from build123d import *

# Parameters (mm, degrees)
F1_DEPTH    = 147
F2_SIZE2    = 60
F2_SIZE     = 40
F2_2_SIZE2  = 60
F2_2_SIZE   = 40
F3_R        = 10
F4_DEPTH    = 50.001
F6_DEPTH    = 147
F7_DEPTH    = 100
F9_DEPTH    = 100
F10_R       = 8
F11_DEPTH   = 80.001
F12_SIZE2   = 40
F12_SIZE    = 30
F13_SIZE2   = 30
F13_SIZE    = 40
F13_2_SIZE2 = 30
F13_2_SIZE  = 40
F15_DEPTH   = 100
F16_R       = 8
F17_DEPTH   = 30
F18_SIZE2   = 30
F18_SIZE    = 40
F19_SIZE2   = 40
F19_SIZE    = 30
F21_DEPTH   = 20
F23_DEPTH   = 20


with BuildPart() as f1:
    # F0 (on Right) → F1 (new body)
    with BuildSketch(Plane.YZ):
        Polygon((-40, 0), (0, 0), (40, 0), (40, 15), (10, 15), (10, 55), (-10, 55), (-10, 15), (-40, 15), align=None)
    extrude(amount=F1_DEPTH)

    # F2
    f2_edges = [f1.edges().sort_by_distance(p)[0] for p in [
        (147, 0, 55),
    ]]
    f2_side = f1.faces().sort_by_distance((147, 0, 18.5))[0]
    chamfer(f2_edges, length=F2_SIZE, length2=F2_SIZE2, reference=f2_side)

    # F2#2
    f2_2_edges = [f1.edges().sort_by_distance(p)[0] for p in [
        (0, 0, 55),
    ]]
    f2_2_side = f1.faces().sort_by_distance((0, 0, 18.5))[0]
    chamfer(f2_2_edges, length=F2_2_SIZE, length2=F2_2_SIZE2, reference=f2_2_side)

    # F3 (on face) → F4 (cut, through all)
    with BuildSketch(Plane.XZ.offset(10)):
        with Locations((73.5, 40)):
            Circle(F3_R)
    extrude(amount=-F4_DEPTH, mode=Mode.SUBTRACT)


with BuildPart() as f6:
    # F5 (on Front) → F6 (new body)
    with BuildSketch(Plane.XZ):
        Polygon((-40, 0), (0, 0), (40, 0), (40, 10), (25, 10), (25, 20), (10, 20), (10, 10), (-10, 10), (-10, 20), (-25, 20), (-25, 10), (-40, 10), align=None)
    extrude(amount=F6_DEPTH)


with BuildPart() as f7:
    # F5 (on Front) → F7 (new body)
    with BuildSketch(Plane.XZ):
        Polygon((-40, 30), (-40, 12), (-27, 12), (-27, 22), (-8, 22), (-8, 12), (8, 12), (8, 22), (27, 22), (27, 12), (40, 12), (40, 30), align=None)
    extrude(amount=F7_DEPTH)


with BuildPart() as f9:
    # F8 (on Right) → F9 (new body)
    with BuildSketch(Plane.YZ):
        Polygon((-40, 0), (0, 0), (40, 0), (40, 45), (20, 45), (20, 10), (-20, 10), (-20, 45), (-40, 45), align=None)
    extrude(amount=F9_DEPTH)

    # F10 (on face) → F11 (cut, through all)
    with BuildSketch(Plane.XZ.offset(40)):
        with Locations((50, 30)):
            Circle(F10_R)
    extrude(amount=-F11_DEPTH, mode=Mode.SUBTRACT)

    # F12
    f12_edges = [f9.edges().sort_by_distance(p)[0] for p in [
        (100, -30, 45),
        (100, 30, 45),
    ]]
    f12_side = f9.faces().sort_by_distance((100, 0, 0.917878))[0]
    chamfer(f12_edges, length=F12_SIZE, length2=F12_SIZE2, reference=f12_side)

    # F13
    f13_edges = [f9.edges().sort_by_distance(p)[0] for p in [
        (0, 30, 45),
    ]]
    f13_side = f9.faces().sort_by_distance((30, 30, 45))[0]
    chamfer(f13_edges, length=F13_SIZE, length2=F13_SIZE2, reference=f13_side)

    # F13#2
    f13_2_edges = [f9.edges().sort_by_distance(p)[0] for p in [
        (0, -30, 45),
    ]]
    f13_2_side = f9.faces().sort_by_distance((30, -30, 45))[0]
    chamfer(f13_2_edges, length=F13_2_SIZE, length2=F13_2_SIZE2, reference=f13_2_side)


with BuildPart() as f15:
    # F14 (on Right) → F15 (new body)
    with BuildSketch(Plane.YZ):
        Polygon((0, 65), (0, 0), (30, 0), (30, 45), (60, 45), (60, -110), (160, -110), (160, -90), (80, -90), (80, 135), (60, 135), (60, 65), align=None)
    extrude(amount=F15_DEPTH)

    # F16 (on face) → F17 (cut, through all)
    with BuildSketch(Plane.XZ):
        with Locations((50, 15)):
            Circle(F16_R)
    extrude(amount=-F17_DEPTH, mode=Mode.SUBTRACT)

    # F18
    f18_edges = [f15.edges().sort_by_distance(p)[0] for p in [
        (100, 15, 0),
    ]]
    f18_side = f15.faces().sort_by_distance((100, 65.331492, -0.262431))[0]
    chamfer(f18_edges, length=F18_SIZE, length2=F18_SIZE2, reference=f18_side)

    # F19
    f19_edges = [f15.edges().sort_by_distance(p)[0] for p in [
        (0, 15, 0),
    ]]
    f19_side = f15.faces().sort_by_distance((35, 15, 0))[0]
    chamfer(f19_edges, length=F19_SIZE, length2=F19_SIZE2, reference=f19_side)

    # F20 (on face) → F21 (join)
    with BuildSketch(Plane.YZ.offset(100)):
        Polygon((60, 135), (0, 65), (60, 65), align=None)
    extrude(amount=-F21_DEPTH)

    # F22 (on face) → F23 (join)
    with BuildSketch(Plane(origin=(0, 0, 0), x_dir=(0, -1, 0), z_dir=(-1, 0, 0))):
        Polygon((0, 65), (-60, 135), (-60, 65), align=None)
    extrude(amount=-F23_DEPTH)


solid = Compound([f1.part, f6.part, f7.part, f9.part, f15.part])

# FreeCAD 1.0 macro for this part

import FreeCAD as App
import Part
import Sketcher
from FreeCAD import Vector


def edges_at(feature, points):
    """Names of the edges that pass closest to the given points."""
    edges = feature.Shape.Edges
    near = lambda p: min(range(len(edges)), key=lambda i: edges[i].distToShape(Part.Vertex(*p))[0])
    return sorted({f"Edge{near(p) + 1}" for p in points})


def add_polygon(sketch, points):
    """Adds a closed chain of lines whose ends are joined by coincident constraints."""
    first, n = sketch.GeometryCount, len(points)
    for a, b in zip(points, points[1:] + points[:1]):
        sketch.addGeometry(Part.LineSegment(App.Vector(*a, 0), App.Vector(*b, 0)), False)
    for i in range(n):
        sketch.addConstraint(Sketcher.Constraint("Coincident", first + i, 2, first + (i + 1) % n, 1))

doc = App.newDocument("Part")
body = doc.addObject("PartDesign::Body", "Body")

# Sketch on YZ plane
sketch1 = body.newObject("Sketcher::SketchObject", "Sketch")
sketch1.AttachmentSupport = (doc.getObject("YZ_Plane"), [""])
sketch1.MapMode = "FlatFace"
add_polygon(sketch1, [(-40, 0), (40, 0), (40, 15), (10, 15), (10, 55), (-10, 55), (-10, 15), (-40, 15)])  # lines 0-7
sketch1.addConstraint([
    Sketcher.Constraint("Horizontal", 0),
    Sketcher.Constraint("Vertical", 1),
    Sketcher.Constraint("Horizontal", 2),
    Sketcher.Constraint("Vertical", 3),
    Sketcher.Constraint("Horizontal", 4),
    Sketcher.Constraint("Vertical", 5),
    Sketcher.Constraint("Horizontal", 6),
    Sketcher.Constraint("Vertical", 7),
    Sketcher.Constraint("Symmetric", 0, 2, 7, 2, -1, 1),
    Sketcher.Constraint("Symmetric", 2, 2, 5, 2, -2),
    Sketcher.Constraint("DistanceX", 0, 1, 0, 2, 80.0),
    Sketcher.Constraint("DistanceX", 2, 2, 2, 1, 30.0),
    Sketcher.Constraint("DistanceY", 1, 1, 1, 2, 15.0),
    Sketcher.Constraint("DistanceY", 3, 1, 3, 2, 40.0),
])
pad1 = body.newObject("PartDesign::Pad", "Pad")
pad1.Profile = sketch1
pad1.Length = 147
doc.recompute()

chamfer = body.newObject("PartDesign::Chamfer", "Chamfer")
chamfer.Base = (pad1, edges_at(pad1, [(147, 0, 55)]))
chamfer.ChamferType = "Two distances"
chamfer.Size = 40
chamfer.Size2 = 60
chamfer.FlipDirection = True
doc.recompute()

chamfer2 = body.newObject("PartDesign::Chamfer", "Chamfer001")
chamfer2.Base = (chamfer, edges_at(chamfer, [(0, 0, 55)]))
chamfer2.ChamferType = "Two distances"
chamfer2.Size = 40
chamfer2.Size2 = 60
chamfer2.FlipDirection = True

# Sketch on XZ plane
sketch2 = body.newObject("Sketcher::SketchObject", "Sketch001")
sketch2.AttachmentSupport = (doc.getObject("XZ_Plane"), [""])
sketch2.MapMode = "FlatFace"
sketch2.AttachmentOffset = App.Placement(Vector(0, 0, 10), App.Rotation())
sketch2.addGeometry(Part.Circle(Vector(74, 40, 0), Vector(0, 0, 1), 10), False)
sketch2.addConstraint([
    Sketcher.Constraint("Diameter", 0, 20.0),
    Sketcher.Constraint("DistanceY", -1, 1, 0, 3, 40.0),
    Sketcher.Constraint("DistanceX", -1, 1, 0, 3, 73.5),
])
pocket1 = body.newObject("PartDesign::Pocket", "Pocket")
pocket1.Profile = sketch2
pocket1.Type = "ThroughAll"
body2 = doc.addObject("PartDesign::Body", "Body001")

# Sketch on XZ plane
sketch3 = body2.newObject("Sketcher::SketchObject", "Sketch002")
sketch3.AttachmentSupport = (doc.getObject("XZ_Plane001"), [""])
sketch3.MapMode = "FlatFace"
add_polygon(sketch3, [(-40, 0), (40, 0), (40, 10), (25, 10), (25, 20), (10, 20), (10, 10), (-10, 10), (-10, 20), (-25, 20), (-25, 10), (-40, 10)])  # lines 0-11
sketch3.addConstraint([
    Sketcher.Constraint("Horizontal", 0),
    Sketcher.Constraint("Vertical", 1),
    Sketcher.Constraint("Horizontal", 2),
    Sketcher.Constraint("Vertical", 3),
    Sketcher.Constraint("Horizontal", 4),
    Sketcher.Constraint("Vertical", 5),
    Sketcher.Constraint("Horizontal", 6),
    Sketcher.Constraint("Vertical", 7),
    Sketcher.Constraint("Horizontal", 8),
    Sketcher.Constraint("Vertical", 9),
    Sketcher.Constraint("Horizontal", 10),
    Sketcher.Constraint("Vertical", 11),
    Sketcher.Constraint("Symmetric", 0, 2, 11, 2, -1, 1),
    Sketcher.Constraint("Symmetric", 4, 2, 7, 2, -2),
    Sketcher.Constraint("Symmetric", 2, 2, 9, 2, -2),
    Sketcher.Constraint("Horizontal", 2, 2, 5, 2),
    Sketcher.Constraint("Equal", 2, 4),
    Sketcher.Constraint("Equal", 1, 3),
    Sketcher.Constraint("DistanceX", 0, 1, 0, 2, 80.0),
    Sketcher.Constraint("DistanceX", 2, 2, 2, 1, 15.0),
    Sketcher.Constraint("DistanceY", 1, 1, 1, 2, 10.0),
])
pad2 = body2.newObject("PartDesign::Pad", "Pad001")
pad2.Profile = sketch3
pad2.Length = 147
body3 = doc.addObject("PartDesign::Body", "Body002")

# Sketch on XZ plane
sketch4 = body3.newObject("Sketcher::SketchObject", "Sketch003")
sketch4.AttachmentSupport = (doc.getObject("XZ_Plane002"), [""])
sketch4.MapMode = "FlatFace"
add_polygon(sketch4, [(-40, 30), (-40, 12), (-27, 12), (-27, 22), (-8, 22), (-8, 12), (8, 12), (8, 22), (27, 22), (27, 12), (40, 12), (40, 30)])  # lines 0-11
sketch4.addConstraint([
    Sketcher.Constraint("Vertical", 0),
    Sketcher.Constraint("Horizontal", 1),
    Sketcher.Constraint("Vertical", 2),
    Sketcher.Constraint("Horizontal", 3),
    Sketcher.Constraint("Vertical", 4),
    Sketcher.Constraint("Horizontal", 5),
    Sketcher.Constraint("Vertical", 6),
    Sketcher.Constraint("Horizontal", 7),
    Sketcher.Constraint("Vertical", 8),
    Sketcher.Constraint("Horizontal", 9),
    Sketcher.Constraint("Vertical", 10),
    Sketcher.Constraint("Horizontal", 11),
    Sketcher.Constraint("Symmetric", 3, 2, 6, 2, -2),
    Sketcher.Constraint("Symmetric", 1, 2, 8, 2, -2),
    Sketcher.Constraint("Horizontal", 1, 2, 4, 2),
    Sketcher.Constraint("Equal", 1, 9),
    Sketcher.Constraint("DistanceX", 1, 1, 1, 2, 13.0),
    Sketcher.Constraint("DistanceX", 3, 1, 3, 2, 19.0),
    Sketcher.Constraint("DistanceX", 5, 1, 5, 2, 16.0),
    Sketcher.Constraint("DistanceY", 0, 2, 0, 1, 18.0),
    Sketcher.Constraint("DistanceY", 2, 1, 2, 2, 10.0),
    Sketcher.Constraint("DistanceY", -1, 1, 0, 2, 12.0),
])
pad3 = body3.newObject("PartDesign::Pad", "Pad002")
pad3.Profile = sketch4
pad3.Length = 100
body4 = doc.addObject("PartDesign::Body", "Body003")

# Sketch on YZ plane
sketch5 = body4.newObject("Sketcher::SketchObject", "Sketch004")
sketch5.AttachmentSupport = (doc.getObject("YZ_Plane003"), [""])
sketch5.MapMode = "FlatFace"
add_polygon(sketch5, [(-40, 0), (40, 0), (40, 45), (20, 45), (20, 10), (-20, 10), (-20, 45), (-40, 45)])  # lines 0-7
sketch5.addConstraint([
    Sketcher.Constraint("Horizontal", 0),
    Sketcher.Constraint("Vertical", 1),
    Sketcher.Constraint("Horizontal", 2),
    Sketcher.Constraint("Vertical", 3),
    Sketcher.Constraint("Horizontal", 4),
    Sketcher.Constraint("Vertical", 5),
    Sketcher.Constraint("Horizontal", 6),
    Sketcher.Constraint("Vertical", 7),
    Sketcher.Constraint("Symmetric", 0, 2, 7, 2, -1, 1),
    Sketcher.Constraint("Symmetric", 2, 2, 5, 2, -2),
    Sketcher.Constraint("DistanceX", 0, 1, 0, 2, 80.0),
    Sketcher.Constraint("DistanceX", 2, 2, 2, 1, 20.0),
    Sketcher.Constraint("DistanceY", 1, 1, 1, 2, 45.0),
    Sketcher.Constraint("DistanceY", 3, 2, 3, 1, 35.0),
])
pad4 = body4.newObject("PartDesign::Pad", "Pad003")
pad4.Profile = sketch5
pad4.Length = 100

# Sketch on XZ plane
sketch6 = body4.newObject("Sketcher::SketchObject", "Sketch005")
sketch6.AttachmentSupport = (doc.getObject("XZ_Plane003"), [""])
sketch6.MapMode = "FlatFace"
sketch6.AttachmentOffset = App.Placement(Vector(0, 0, 40), App.Rotation())
sketch6.addGeometry(Part.Circle(Vector(50, 30, 0), Vector(0, 0, 1), 8), False)
sketch6.addConstraint([
    Sketcher.Constraint("Diameter", 0, 16.0),
    Sketcher.Constraint("DistanceX", -1, 1, 0, 3, 50.0),
    Sketcher.Constraint("DistanceY", -1, 1, 0, 3, 30.0),
])
pocket2 = body4.newObject("PartDesign::Pocket", "Pocket001")
pocket2.Profile = sketch6
pocket2.Type = "ThroughAll"
doc.recompute()

chamfer3 = body4.newObject("PartDesign::Chamfer", "Chamfer002")
chamfer3.Base = (pocket2, edges_at(pocket2, [(100, -30, 45), (100, 30, 45)]))
chamfer3.ChamferType = "Two distances"
chamfer3.Size = 30
chamfer3.Size2 = 40
doc.recompute()

chamfer4 = body4.newObject("PartDesign::Chamfer", "Chamfer003")
chamfer4.Base = (chamfer3, edges_at(chamfer3, [(0, 30, 45)]))
chamfer4.ChamferType = "Two distances"
chamfer4.Size = 40
chamfer4.Size2 = 30
chamfer4.FlipDirection = True
doc.recompute()

chamfer5 = body4.newObject("PartDesign::Chamfer", "Chamfer004")
chamfer5.Base = (chamfer4, edges_at(chamfer4, [(0, -30, 45)]))
chamfer5.ChamferType = "Two distances"
chamfer5.Size = 40
chamfer5.Size2 = 30
chamfer5.FlipDirection = True
body5 = doc.addObject("PartDesign::Body", "Body004")

# Sketch on YZ plane
sketch7 = body5.newObject("Sketcher::SketchObject", "Sketch006")
sketch7.AttachmentSupport = (doc.getObject("YZ_Plane004"), [""])
sketch7.MapMode = "FlatFace"
add_polygon(sketch7, [(0, 65), (0, 0), (30, 0), (30, 45), (60, 45), (60, -110), (160, -110), (160, -90), (80, -90), (80, 135), (60, 135), (60, 65)])  # lines 0-11
sketch7.addConstraint([
    Sketcher.Constraint("Vertical", 0),
    Sketcher.Constraint("Horizontal", 1),
    Sketcher.Constraint("Vertical", 2),
    Sketcher.Constraint("Horizontal", 3),
    Sketcher.Constraint("Vertical", 4),
    Sketcher.Constraint("Horizontal", 5),
    Sketcher.Constraint("Vertical", 6),
    Sketcher.Constraint("Horizontal", 7),
    Sketcher.Constraint("Vertical", 8),
    Sketcher.Constraint("Horizontal", 9),
    Sketcher.Constraint("Vertical", 10),
    Sketcher.Constraint("Horizontal", 11),
    Sketcher.Constraint("Coincident", 0, 2, -1, 1),
    Sketcher.Constraint("Vertical", 4, 2, 9, 2),
    Sketcher.Constraint("Equal", 1, 3),
    Sketcher.Constraint("Equal", 9, 6),
    Sketcher.Constraint("DistanceX", 1, 1, 1, 2, 30.0),
    Sketcher.Constraint("DistanceX", 5, 1, 5, 2, 100.0),
    Sketcher.Constraint("DistanceX", 7, 2, 7, 1, 80.0),
    Sketcher.Constraint("DistanceY", 0, 2, 0, 1, 65.0),
    Sketcher.Constraint("DistanceY", 2, 1, 2, 2, 45.0),
    Sketcher.Constraint("DistanceY", 4, 2, 4, 1, 155.0),
    Sketcher.Constraint("DistanceY", 8, 1, 8, 2, 225.0),
])
pad5 = body5.newObject("PartDesign::Pad", "Pad004")
pad5.Profile = sketch7
pad5.Length = 100

# Sketch on XZ plane
sketch8 = body5.newObject("Sketcher::SketchObject", "Sketch007")
sketch8.AttachmentSupport = (doc.getObject("XZ_Plane004"), [""])
sketch8.MapMode = "FlatFace"
sketch8.addGeometry(Part.Circle(Vector(50, 15, 0), Vector(0, 0, 1), 8), False)
sketch8.addConstraint([
    Sketcher.Constraint("Diameter", 0, 16.0),
    Sketcher.Constraint("DistanceX", -1, 1, 0, 3, 50.0),
    Sketcher.Constraint("DistanceY", -1, 1, 0, 3, 15.0),
])
pocket3 = body5.newObject("PartDesign::Pocket", "Pocket002")
pocket3.Profile = sketch8
pocket3.Length = 30
doc.recompute()

chamfer6 = body5.newObject("PartDesign::Chamfer", "Chamfer005")
chamfer6.Base = (pocket3, edges_at(pocket3, [(100, 15, 0)]))
chamfer6.ChamferType = "Two distances"
chamfer6.Size = 40
chamfer6.Size2 = 30
doc.recompute()

chamfer7 = body5.newObject("PartDesign::Chamfer", "Chamfer006")
chamfer7.Base = (chamfer6, edges_at(chamfer6, [(0, 15, 0)]))
chamfer7.ChamferType = "Two distances"
chamfer7.Size = 30
chamfer7.Size2 = 40

# Sketch on YZ plane
sketch9 = body5.newObject("Sketcher::SketchObject", "Sketch008")
sketch9.AttachmentSupport = (doc.getObject("YZ_Plane004"), [""])
sketch9.MapMode = "FlatFace"
sketch9.AttachmentOffset = App.Placement(Vector(0, 0, 100), App.Rotation())
add_polygon(sketch9, [(60, 135), (0, 65), (60, 65)])  # lines 0-2
sketch9.addConstraint([
    Sketcher.Constraint("Horizontal", 1),
    Sketcher.Constraint("Vertical", 2),
    Sketcher.Constraint("PointOnObject", 0, 2, -2),
    Sketcher.Constraint("DistanceX", 1, 1, 1, 2, 60.0),
    Sketcher.Constraint("DistanceY", 2, 1, 2, 2, 70.0),
    Sketcher.Constraint("DistanceY", -1, 1, 0, 2, 65.0),
])
pad6 = body5.newObject("PartDesign::Pad", "Pad005")
pad6.Profile = sketch9
pad6.Length = 20
pad6.Reversed = True

# Sketch on YZ plane
sketch10 = body5.newObject("Sketcher::SketchObject", "Sketch009")
sketch10.AttachmentSupport = (doc.getObject("YZ_Plane004"), [""])
sketch10.MapMode = "FlatFace"
add_polygon(sketch10, [(0, 65), (60, 135), (60, 65)])  # lines 0-2
sketch10.addConstraint([
    Sketcher.Constraint("Vertical", 1),
    Sketcher.Constraint("Horizontal", 2),
    Sketcher.Constraint("PointOnObject", 2, 2, -2),
    Sketcher.Constraint("DistanceX", 2, 2, 2, 1, 60.0),
    Sketcher.Constraint("DistanceY", 1, 2, 1, 1, 70.0),
    Sketcher.Constraint("DistanceY", -1, 1, 0, 2, 135.0),
])
pad7 = body5.newObject("PartDesign::Pad", "Pad006")
pad7.Profile = sketch10
pad7.Length = 20

doc.recompute()
